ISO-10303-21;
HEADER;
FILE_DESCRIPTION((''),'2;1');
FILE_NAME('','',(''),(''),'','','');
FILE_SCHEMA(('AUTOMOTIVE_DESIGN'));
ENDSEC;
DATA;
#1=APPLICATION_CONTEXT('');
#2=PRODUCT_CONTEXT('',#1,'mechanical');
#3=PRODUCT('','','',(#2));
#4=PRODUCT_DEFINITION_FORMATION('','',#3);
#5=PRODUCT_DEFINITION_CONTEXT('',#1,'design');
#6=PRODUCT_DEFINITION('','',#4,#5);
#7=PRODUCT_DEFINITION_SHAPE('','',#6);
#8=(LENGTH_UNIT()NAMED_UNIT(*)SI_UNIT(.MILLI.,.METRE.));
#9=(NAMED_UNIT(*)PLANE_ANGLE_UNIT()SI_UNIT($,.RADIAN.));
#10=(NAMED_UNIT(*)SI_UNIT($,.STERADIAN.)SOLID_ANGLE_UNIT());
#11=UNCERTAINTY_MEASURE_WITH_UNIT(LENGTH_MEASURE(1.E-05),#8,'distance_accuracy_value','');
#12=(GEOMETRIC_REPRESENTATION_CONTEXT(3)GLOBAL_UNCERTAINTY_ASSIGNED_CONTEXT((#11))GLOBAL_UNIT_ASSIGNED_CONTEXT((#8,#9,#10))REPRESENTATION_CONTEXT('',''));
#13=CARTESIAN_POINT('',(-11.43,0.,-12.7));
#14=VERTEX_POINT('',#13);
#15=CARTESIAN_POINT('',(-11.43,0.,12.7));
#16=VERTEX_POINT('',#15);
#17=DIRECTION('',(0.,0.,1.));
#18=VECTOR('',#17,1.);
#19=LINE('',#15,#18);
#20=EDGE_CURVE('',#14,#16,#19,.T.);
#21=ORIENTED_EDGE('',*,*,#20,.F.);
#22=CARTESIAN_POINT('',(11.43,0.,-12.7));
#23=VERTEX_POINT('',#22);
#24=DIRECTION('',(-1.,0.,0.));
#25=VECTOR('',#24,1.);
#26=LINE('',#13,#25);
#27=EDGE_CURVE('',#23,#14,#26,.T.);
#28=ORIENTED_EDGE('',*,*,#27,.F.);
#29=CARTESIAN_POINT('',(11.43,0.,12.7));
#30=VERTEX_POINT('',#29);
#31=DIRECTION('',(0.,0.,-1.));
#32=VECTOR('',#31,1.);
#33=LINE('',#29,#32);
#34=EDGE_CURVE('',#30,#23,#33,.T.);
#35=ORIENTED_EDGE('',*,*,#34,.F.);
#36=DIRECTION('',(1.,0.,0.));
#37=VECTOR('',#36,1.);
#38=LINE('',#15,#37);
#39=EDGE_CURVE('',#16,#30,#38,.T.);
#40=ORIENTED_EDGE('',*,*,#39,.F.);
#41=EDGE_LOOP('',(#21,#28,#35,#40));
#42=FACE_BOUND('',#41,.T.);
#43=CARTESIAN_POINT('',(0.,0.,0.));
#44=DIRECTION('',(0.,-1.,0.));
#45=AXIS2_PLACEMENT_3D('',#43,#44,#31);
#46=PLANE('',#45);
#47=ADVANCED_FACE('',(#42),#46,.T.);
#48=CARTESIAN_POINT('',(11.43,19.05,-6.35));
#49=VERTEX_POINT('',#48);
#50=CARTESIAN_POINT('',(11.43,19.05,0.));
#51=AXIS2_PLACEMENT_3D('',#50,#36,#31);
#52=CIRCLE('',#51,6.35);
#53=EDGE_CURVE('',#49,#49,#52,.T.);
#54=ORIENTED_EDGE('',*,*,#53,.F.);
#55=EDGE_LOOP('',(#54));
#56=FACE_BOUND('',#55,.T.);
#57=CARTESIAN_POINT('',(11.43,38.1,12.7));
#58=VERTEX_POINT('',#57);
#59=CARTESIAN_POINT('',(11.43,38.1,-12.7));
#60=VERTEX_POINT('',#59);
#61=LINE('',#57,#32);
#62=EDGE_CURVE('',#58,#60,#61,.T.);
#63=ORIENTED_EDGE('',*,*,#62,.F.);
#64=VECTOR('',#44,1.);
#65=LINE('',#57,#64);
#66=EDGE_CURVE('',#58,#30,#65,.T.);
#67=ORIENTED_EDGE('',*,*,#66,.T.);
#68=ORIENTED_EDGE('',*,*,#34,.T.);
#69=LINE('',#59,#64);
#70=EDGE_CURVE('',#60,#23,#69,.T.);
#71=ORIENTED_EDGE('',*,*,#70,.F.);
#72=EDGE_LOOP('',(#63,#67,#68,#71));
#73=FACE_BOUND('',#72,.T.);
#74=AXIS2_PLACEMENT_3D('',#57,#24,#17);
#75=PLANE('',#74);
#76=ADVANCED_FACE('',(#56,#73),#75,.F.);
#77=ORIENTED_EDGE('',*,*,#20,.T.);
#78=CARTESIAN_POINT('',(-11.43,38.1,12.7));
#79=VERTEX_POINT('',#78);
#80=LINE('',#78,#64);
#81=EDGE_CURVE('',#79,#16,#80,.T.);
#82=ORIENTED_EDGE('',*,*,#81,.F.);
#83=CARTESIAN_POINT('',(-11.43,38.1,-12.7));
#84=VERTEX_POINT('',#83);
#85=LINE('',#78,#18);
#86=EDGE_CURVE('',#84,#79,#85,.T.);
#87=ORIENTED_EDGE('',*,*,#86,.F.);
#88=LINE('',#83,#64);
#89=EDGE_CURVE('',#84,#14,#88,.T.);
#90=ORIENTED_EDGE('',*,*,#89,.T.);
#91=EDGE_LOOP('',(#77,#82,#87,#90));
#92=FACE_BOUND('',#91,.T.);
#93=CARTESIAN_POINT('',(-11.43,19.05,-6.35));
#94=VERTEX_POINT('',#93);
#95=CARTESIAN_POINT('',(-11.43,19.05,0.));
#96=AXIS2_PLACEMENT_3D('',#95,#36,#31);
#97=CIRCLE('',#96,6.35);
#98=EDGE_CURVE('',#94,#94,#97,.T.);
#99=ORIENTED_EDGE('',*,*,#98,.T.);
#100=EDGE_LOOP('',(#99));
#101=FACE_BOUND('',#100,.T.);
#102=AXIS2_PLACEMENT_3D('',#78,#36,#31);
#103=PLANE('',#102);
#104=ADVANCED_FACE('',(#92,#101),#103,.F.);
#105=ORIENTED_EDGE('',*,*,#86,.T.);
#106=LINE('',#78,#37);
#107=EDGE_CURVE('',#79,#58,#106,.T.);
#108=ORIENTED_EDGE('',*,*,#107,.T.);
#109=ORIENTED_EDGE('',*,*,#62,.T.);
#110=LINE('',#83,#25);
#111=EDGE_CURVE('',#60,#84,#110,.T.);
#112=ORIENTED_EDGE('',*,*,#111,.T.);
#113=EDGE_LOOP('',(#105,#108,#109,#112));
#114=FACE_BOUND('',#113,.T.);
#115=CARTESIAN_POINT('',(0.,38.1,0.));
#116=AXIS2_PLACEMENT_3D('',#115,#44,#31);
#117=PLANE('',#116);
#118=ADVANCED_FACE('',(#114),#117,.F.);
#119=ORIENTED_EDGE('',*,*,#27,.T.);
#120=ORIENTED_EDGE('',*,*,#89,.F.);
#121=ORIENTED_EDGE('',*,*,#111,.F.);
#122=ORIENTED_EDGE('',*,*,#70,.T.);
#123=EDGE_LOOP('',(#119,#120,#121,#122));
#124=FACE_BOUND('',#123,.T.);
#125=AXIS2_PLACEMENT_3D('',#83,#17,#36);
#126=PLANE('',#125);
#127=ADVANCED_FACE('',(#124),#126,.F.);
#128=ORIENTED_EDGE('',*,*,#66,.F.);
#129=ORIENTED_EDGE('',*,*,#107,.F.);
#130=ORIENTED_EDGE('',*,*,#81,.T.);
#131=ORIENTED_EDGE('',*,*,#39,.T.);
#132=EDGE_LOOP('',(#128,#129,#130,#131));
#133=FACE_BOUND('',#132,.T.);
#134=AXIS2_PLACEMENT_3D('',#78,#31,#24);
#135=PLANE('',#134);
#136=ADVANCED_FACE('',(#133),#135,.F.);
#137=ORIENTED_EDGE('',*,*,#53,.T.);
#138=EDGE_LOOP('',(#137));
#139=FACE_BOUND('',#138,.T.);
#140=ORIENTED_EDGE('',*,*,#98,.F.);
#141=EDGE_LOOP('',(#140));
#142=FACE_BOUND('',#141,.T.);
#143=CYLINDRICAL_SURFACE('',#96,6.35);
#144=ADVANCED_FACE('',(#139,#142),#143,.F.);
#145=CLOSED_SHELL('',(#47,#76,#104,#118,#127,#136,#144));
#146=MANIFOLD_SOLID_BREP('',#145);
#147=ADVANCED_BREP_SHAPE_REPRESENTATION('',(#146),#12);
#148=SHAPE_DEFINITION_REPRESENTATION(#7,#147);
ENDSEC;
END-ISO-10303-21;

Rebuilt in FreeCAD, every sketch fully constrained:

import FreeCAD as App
import Part
import Sketcher
from FreeCAD import Vector
Q = App.Units.Quantity


def add_polygon(sketch, points):
    """Adds a closed chain of lines whose ends are joined by coincident constraints."""
    first, n = sketch.GeometryCount, len(points)
    for a, b in zip(points, points[1:] + points[:1]):
        sketch.addGeometry(Part.LineSegment(App.Vector(*a, 0), App.Vector(*b, 0)), False)
    for i in range(n):
        sketch.addConstraint(Sketcher.Constraint("Coincident", first + i, 2, first + (i + 1) % n, 1))

doc = App.newDocument("Part")
params = doc.addObject("Spreadsheet::Sheet", "Params")
for row, (alias, value) in enumerate([
    ("sketch1_height", "1 in"),
    ("sketch1_width", "0.9 in"),
    ("pad1_length", "1.5 in"),
    ("sketch2_diameter", "0.5 in"),
], start=1):
    params.set(f"A{row}", alias)
    params.set(f"B{row}", "=" + value)
    params.setAlias(f"B{row}", alias)

body = doc.addObject("PartDesign::Body", "Body")

# Sketch on XZ plane
sketch1 = doc.addObject("Sketcher::SketchObject", "Sketch")
body.addObject(sketch1)
sketch1.AttachmentSupport = (doc.XZ_Plane, [""])
sketch1.MapMode = "FlatFace"
add_polygon(sketch1, [(-11, -13), (-11, 13), (11, 13), (11, -13)])  # lines 0-3
sketch1.addConstraint([
    Sketcher.Constraint("Vertical", 0),
    Sketcher.Constraint("Horizontal", 1),
    Sketcher.Constraint("Vertical", 2),
    Sketcher.Constraint("Horizontal", 3),
    Sketcher.Constraint("Symmetric", 0, 2, 2, 2, -1, 1),
    Sketcher.Constraint("DistanceY", 0, 1, 0, 2, Q("1 in")),
    Sketcher.Constraint("DistanceX", 1, 1, 1, 2, Q("0.9 in")),
])
sketch1.setExpression("Constraints[9]", "Params.sketch1_height")
sketch1.setExpression("Constraints[10]", "Params.sketch1_width")
pad1 = doc.addObject("PartDesign::Pad", "Pad")
body.addObject(pad1)
pad1.Profile = sketch1
pad1.setExpression("Length", "Params.pad1_length")
pad1.Reversed = True

# Sketch on YZ plane
sketch2 = doc.addObject("Sketcher::SketchObject", "Sketch001")
body.addObject(sketch2)
sketch2.AttachmentSupport = (doc.YZ_Plane, [""])
sketch2.MapMode = "FlatFace"
sketch2.AttachmentOffset = App.Placement(Vector(0, 0, 0.45 * 25.4), App.Rotation())
sketch2.addGeometry(Part.Circle(Vector(19, 0, 0), Vector(0, 0, 1), 6), False)
sketch2.addConstraint([
    Sketcher.Constraint("PointOnObject", 0, 3, -1),
    Sketcher.Constraint("Diameter", 0, Q("0.5 in")),
    Sketcher.Constraint("DistanceX", -1, 1, 0, 3, Q("0.75 in")),
])
sketch2.setExpression("Constraints[1]", "Params.sketch2_diameter")
pocket1 = doc.addObject("PartDesign::Pocket", "Pocket")
body.addObject(pocket1)
pocket1.Profile = sketch2
pocket1.Type = "ThroughAll"

doc.recompute()
